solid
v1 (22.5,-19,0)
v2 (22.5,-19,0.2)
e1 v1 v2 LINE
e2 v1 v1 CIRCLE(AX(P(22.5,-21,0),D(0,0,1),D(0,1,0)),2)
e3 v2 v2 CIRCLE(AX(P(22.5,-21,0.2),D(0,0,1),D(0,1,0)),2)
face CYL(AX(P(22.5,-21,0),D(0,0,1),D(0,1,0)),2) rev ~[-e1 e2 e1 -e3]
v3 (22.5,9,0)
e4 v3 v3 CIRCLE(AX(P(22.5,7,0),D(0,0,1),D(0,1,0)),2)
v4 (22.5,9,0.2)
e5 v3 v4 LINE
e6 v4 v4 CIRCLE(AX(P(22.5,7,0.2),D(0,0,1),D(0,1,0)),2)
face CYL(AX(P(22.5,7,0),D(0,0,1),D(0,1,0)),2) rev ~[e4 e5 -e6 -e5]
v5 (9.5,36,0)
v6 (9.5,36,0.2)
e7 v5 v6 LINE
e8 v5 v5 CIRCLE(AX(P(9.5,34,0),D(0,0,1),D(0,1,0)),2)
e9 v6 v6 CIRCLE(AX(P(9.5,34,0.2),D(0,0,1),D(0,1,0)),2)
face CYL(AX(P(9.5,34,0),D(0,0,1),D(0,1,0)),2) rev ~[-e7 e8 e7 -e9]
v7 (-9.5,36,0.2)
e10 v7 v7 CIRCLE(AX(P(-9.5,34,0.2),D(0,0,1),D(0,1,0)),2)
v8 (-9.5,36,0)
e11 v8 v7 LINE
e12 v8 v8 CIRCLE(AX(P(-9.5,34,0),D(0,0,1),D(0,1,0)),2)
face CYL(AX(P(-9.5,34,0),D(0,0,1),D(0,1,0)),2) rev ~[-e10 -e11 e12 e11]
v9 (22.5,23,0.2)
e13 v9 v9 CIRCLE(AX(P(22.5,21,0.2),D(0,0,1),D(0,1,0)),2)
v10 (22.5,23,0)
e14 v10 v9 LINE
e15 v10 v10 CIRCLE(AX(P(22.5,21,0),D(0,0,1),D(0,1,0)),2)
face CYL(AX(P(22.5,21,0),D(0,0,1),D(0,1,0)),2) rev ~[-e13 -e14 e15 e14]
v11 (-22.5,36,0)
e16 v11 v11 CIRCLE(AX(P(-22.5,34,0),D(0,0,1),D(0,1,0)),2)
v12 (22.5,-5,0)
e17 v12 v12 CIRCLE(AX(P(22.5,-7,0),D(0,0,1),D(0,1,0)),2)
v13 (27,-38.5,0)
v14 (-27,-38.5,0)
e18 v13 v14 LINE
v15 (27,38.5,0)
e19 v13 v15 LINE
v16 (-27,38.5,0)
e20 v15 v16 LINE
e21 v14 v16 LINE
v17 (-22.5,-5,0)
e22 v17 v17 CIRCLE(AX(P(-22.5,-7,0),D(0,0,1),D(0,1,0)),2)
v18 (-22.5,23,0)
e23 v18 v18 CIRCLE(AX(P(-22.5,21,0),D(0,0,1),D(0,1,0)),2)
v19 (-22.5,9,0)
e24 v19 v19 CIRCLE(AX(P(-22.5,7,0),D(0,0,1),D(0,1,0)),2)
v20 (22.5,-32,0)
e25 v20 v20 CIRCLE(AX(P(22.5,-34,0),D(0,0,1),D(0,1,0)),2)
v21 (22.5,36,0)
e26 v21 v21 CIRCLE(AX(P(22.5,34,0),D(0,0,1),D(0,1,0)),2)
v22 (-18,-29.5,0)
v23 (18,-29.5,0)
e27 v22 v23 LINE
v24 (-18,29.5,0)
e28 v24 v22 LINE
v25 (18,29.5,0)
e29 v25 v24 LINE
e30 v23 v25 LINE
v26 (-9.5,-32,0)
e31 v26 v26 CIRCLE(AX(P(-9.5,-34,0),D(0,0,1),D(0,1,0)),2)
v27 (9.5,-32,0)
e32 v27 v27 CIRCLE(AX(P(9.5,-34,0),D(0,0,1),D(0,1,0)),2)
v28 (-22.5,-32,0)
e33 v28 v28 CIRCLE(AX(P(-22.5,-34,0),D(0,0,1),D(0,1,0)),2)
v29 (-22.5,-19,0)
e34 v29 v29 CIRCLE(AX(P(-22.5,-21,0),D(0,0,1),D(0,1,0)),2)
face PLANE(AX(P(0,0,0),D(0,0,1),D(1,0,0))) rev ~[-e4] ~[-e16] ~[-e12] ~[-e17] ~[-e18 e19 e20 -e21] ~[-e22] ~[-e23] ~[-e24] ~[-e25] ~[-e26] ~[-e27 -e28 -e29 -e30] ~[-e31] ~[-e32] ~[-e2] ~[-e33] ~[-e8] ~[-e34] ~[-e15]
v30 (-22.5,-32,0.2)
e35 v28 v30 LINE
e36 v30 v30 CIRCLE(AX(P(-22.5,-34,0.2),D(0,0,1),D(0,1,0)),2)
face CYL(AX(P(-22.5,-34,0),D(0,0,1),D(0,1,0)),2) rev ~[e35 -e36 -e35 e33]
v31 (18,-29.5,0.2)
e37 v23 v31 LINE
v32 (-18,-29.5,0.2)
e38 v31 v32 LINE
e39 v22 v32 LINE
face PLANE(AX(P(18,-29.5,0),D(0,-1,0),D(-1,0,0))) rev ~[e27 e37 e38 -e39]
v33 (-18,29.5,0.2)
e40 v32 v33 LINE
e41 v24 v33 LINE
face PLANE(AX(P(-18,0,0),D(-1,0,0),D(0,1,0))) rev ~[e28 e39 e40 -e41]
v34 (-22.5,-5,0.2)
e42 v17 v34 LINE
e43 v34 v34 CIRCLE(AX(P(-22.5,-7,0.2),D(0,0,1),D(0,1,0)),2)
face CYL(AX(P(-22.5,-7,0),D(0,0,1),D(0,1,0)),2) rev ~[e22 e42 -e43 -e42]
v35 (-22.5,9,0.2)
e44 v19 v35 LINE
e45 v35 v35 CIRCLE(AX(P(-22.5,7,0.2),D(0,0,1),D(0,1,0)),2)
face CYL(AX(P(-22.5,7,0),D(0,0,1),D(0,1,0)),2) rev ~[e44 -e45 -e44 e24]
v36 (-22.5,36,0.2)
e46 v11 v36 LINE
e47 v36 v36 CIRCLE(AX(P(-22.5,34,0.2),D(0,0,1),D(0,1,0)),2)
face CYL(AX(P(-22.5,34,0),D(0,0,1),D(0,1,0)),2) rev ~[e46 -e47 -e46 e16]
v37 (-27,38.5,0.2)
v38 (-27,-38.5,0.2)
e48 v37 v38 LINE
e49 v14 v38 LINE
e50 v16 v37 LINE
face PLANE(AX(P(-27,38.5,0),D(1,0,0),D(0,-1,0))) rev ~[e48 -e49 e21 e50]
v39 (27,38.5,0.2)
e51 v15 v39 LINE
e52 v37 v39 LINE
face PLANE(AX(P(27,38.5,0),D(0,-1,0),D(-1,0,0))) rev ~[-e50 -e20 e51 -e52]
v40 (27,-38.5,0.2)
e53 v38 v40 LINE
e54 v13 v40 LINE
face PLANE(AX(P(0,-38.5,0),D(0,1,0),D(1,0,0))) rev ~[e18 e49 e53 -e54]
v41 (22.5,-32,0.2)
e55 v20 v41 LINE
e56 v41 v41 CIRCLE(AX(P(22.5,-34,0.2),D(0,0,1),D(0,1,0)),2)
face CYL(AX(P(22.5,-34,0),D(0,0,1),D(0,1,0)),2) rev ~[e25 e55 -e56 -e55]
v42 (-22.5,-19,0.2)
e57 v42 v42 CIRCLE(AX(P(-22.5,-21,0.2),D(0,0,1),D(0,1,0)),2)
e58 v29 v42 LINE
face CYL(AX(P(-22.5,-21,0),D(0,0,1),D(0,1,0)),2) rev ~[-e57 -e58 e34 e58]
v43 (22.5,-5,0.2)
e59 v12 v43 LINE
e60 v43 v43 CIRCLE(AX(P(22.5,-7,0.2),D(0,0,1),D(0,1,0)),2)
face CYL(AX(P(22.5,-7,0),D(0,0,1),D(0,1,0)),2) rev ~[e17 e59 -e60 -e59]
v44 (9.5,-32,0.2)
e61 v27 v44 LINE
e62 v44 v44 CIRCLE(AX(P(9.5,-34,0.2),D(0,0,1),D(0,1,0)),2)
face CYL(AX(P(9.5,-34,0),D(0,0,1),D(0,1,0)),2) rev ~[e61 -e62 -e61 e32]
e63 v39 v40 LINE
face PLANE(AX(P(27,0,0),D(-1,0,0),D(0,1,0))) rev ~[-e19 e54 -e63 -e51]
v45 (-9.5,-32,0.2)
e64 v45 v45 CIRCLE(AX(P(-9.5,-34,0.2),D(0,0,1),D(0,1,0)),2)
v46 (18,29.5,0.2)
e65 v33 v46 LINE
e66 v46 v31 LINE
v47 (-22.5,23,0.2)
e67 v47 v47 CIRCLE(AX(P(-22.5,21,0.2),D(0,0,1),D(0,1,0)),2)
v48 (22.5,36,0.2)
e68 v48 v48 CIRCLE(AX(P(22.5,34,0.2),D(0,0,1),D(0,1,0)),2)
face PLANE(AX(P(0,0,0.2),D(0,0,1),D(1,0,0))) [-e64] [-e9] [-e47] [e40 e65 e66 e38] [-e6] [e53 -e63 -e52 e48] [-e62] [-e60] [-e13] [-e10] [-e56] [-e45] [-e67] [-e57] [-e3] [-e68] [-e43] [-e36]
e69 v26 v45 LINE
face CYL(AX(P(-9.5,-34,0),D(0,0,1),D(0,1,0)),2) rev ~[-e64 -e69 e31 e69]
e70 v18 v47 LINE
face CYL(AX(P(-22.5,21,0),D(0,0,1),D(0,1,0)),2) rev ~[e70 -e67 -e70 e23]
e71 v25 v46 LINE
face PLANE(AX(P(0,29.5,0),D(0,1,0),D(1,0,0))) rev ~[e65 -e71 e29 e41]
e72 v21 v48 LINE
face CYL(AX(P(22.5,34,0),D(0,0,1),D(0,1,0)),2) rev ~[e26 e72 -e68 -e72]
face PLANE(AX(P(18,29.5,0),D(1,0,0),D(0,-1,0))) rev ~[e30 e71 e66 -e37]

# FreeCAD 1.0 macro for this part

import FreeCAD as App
import Part
import Sketcher

doc = App.newDocument("Part")
body = doc.addObject("PartDesign::Body", "Body")

# Sketch on XY plane
sketch1 = body.newObject("Sketcher::SketchObject", "Sketch")
sketch1.AttachmentSupport = (doc.getObject("XY_Plane"), [""])
sketch1.MapMode = "FlatFace"
sketch1.addGeometry([
    Part.LineSegment(App.Vector(27, 38.5, 0), App.Vector(-27, 38.5, 0)),  # 0
    Part.LineSegment(App.Vector(-27, 38.5, 0), App.Vector(-27, -38.5, 0)),  # 1
    Part.LineSegment(App.Vector(-27, -38.5, 0), App.Vector(27, -38.5, 0)),  # 2
    Part.LineSegment(App.Vector(27, -38.5, 0), App.Vector(27, 38.5, 0)),  # 3
    Part.LineSegment(App.Vector(18, 29.5, 0), App.Vector(18, -29.5, 0)),  # 4
    Part.LineSegment(App.Vector(18, -29.5, 0), App.Vector(-18, -29.5, 0)),  # 5
    Part.LineSegment(App.Vector(-18, -29.5, 0), App.Vector(-18, 29.5, 0)),  # 6
    Part.LineSegment(App.Vector(-18, 29.5, 0), App.Vector(18, 29.5, 0)),  # 7
], False)
sketch1.addConstraint([
    Sketcher.Constraint("Coincident", 0, 2, 1, 1),
    Sketcher.Constraint("Coincident", 1, 2, 2, 1),
    Sketcher.Constraint("Coincident", 2, 2, 3, 1),
    Sketcher.Constraint("Coincident", 3, 2, 0, 1),
    Sketcher.Constraint("Coincident", 4, 2, 5, 1),
    Sketcher.Constraint("Coincident", 5, 2, 6, 1),
    Sketcher.Constraint("Coincident", 6, 2, 7, 1),
    Sketcher.Constraint("Coincident", 7, 2, 4, 1),
    Sketcher.Constraint("Horizontal", 0),
    Sketcher.Constraint("Vertical", 1),
    Sketcher.Constraint("Horizontal", 2),
    Sketcher.Constraint("Vertical", 3),
    Sketcher.Constraint("Vertical", 4),
    Sketcher.Constraint("Horizontal", 5),
    Sketcher.Constraint("Vertical", 6),
    Sketcher.Constraint("Horizontal", 7),
    Sketcher.Constraint("Symmetric", 0, 2, 2, 2, -1, 1),
    Sketcher.Constraint("Symmetric", 4, 2, 6, 2, -1, 1),
    Sketcher.Constraint("DistanceX", 0, 2, 0, 1, 54.0),
    Sketcher.Constraint("DistanceX", 5, 2, 5, 1, 36.0),
    Sketcher.Constraint("DistanceY", 1, 2, 1, 1, 77.0),
    Sketcher.Constraint("DistanceY", 4, 2, 4, 1, 59.0),
])
pad1 = body.newObject("PartDesign::Pad", "Pad")
pad1.Profile = sketch1
pad1.Length = 0.2

# Sketch on XY plane
sketch2 = body.newObject("Sketcher::SketchObject", "Sketch001")
sketch2.AttachmentSupport = (doc.getObject("XY_Plane"), [""])
sketch2.MapMode = "FlatFace"
sketch2.addGeometry([
    Part.Circle(App.Vector(-22.5, 34, 0), App.Vector(0, 0, 1), 2),  # 0
    Part.Circle(App.Vector(-9.5, 34, 0), App.Vector(0, 0, 1), 2),  # 1
    Part.Circle(App.Vector(9.5, 34, 0), App.Vector(0, 0, 1), 2),  # 2
    Part.Circle(App.Vector(22.5, 34, 0), App.Vector(0, 0, 1), 2),  # 3
    Part.Circle(App.Vector(-22.5, -34, 0), App.Vector(0, 0, 1), 2),  # 4
    Part.Circle(App.Vector(-9.5, -34, 0), App.Vector(0, 0, 1), 2),  # 5
    Part.Circle(App.Vector(9.5, -34, 0), App.Vector(0, 0, 1), 2),  # 6
    Part.Circle(App.Vector(22.5, -34, 0), App.Vector(0, 0, 1), 2),  # 7
    Part.Circle(App.Vector(-22.5, 21, 0), App.Vector(0, 0, 1), 2),  # 8
    Part.Circle(App.Vector(-22.5, 7, 0), App.Vector(0, 0, 1), 2),  # 9
    Part.Circle(App.Vector(-22.5, -21, 0), App.Vector(0, 0, 1), 2),  # 10
    Part.Circle(App.Vector(-22.5, -7, 0), App.Vector(0, 0, 1), 2),  # 11
    Part.Circle(App.Vector(22.5, 21, 0), App.Vector(0, 0, 1), 2),  # 12
    Part.Circle(App.Vector(22.5, 7, 0), App.Vector(0, 0, 1), 2),  # 13
    Part.Circle(App.Vector(22.5, -7, 0), App.Vector(0, 0, 1), 2),  # 14
    Part.Circle(App.Vector(22.5, -21, 0), App.Vector(0, 0, 1), 2),  # 15
], False)
sketch2.addConstraint([
    Sketcher.Constraint("Equal", 0, 1),
    Sketcher.Constraint("Equal", 1, 2),
    Sketcher.Constraint("Equal", 2, 3),
    Sketcher.Constraint("Equal", 3, 4),
    Sketcher.Constraint("Equal", 4, 5),
    Sketcher.Constraint("Equal", 5, 6),
    Sketcher.Constraint("Equal", 6, 7),
    Sketcher.Constraint("Equal", 7, 8),
    Sketcher.Constraint("Equal", 8, 9),
    Sketcher.Constraint("Equal", 9, 10),
    Sketcher.Constraint("Equal", 10, 11),
    Sketcher.Constraint("Equal", 11, 12),
    Sketcher.Constraint("Equal", 12, 13),
    Sketcher.Constraint("Equal", 13, 14),
    Sketcher.Constraint("Equal", 14, 15),
    Sketcher.Constraint("Symmetric", 3, 3, 4, 3, -1, 1),
    Sketcher.Constraint("Symmetric", 2, 3, 5, 3, -1, 1),
    Sketcher.Constraint("Symmetric", 1, 3, 6, 3, -1, 1),
    Sketcher.Constraint("Symmetric", 0, 3, 7, 3, -1, 1),
    Sketcher.Constraint("Symmetric", 10, 3, 12, 3, -1, 1),
    Sketcher.Constraint("Symmetric", 11, 3, 13, 3, -1, 1),
    Sketcher.Constraint("Symmetric", 9, 3, 14, 3, -1, 1),
    Sketcher.Constraint("Symmetric", 8, 3, 15, 3, -1, 1),
    Sketcher.Constraint("Symmetric", 1, 3, 2, 3, -2),
    Sketcher.Constraint("Symmetric", 0, 3, 3, 3, -2),
    Sketcher.Constraint("Symmetric", 8, 3, 12, 3, -2),
    Sketcher.Constraint("Symmetric", 9, 3, 13, 3, -2),
    Sketcher.Constraint("Horizontal", 0, 3, 1, 3),
    Sketcher.Constraint("Vertical", 4, 3, 8, 3),
    Sketcher.Constraint("Vertical", 8, 3, 9, 3),
    Sketcher.Constraint("Diameter", 0, 4.0),
    Sketcher.Constraint("DistanceY", -1, 1, 0, 3, 34.0),
    Sketcher.Constraint("DistanceY", -1, 1, 8, 3, 21.0),
    Sketcher.Constraint("DistanceY", -1, 1, 9, 3, 7.0),
    Sketcher.Constraint("DistanceX", 0, 3, 1, 3, 13.0),
    Sketcher.Constraint("DistanceX", 1, 3, 2, 3, 19.0),
])
doc.recompute()
hole = body.newObject("PartDesign::Hole", "Hole")
hole.Profile = sketch2
hole.ThreadType = "None"
hole.Diameter = 4
hole.DepthType = "ThroughAll"
hole.Reversed = True

doc.recompute()
